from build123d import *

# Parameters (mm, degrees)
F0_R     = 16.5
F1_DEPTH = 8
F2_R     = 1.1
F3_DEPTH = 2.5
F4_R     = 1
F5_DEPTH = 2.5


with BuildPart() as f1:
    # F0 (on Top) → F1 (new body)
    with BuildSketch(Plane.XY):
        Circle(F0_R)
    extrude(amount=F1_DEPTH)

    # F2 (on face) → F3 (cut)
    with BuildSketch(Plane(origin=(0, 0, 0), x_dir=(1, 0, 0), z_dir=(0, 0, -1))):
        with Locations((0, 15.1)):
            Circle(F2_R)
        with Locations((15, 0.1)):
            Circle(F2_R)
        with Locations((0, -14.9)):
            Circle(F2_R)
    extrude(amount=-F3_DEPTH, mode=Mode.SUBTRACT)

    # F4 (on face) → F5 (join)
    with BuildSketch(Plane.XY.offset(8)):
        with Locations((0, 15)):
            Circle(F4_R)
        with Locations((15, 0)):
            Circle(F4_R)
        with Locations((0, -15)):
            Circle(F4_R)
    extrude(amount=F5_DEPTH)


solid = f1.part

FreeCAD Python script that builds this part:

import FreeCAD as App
import Part
import Sketcher

doc = App.newDocument("Part")
params = doc.addObject("Spreadsheet::Sheet", "Params")
for row, (alias, value) in enumerate([
    ("sketch1_diameter", "33 mm"),
    ("pad1_length", "8 mm"),
    ("sketch2_diameter", "2.2 mm"),
    ("pocket1_length", "2.5 mm"),
    ("sketch3_diameter", "2 mm"),
    ("pad2_length", "2.5 mm"),
], start=1):
    params.set(f"A{row}", alias)
    params.set(f"B{row}", "=" + value)
    params.setAlias(f"B{row}", alias)

body = doc.addObject("PartDesign::Body", "Body")

# Sketch on XY plane
sketch1 = body.newObject("Sketcher::SketchObject", "Sketch")
sketch1.AttachmentSupport = (doc.getObject("XY_Plane"), [""])
sketch1.MapMode = "FlatFace"
sketch1.addGeometry(Part.Circle(App.Vector(0, 0, 0), App.Vector(0, 0, 1), 16.5), False)
sketch1.addConstraint(Sketcher.Constraint("Coincident", 0, 3, -1, 1))
sketch1.addConstraint(Sketcher.Constraint("Diameter", 0, 33.0))
sketch1.setExpression("Constraints[1]", "Params.sketch1_diameter")
pad1 = body.newObject("PartDesign::Pad", "Pad")
pad1.Profile = sketch1
pad1.setExpression("Length", "Params.pad1_length")

# Sketch on XY plane
sketch2 = body.newObject("Sketcher::SketchObject", "Sketch001")
sketch2.AttachmentSupport = (doc.getObject("XY_Plane"), [""])
sketch2.MapMode = "FlatFace"
sketch2.addGeometry(Part.Circle(App.Vector(0, -15.1, 0), App.Vector(0, 0, 1), 1.1), False)
sketch2.addGeometry(Part.Circle(App.Vector(15, -0.1, 0), App.Vector(0, 0, 1), 1.1), False)
sketch2.addGeometry(Part.Circle(App.Vector(0, 14.9, 0), App.Vector(0, 0, 1), 1.1), False)
sketch2.addConstraint(Sketcher.Constraint("Equal", 0, 1))
sketch2.addConstraint(Sketcher.Constraint("Equal", 1, 2))
sketch2.addConstraint(Sketcher.Constraint("PointOnObject", 0, 3, -2))
sketch2.addConstraint(Sketcher.Constraint("PointOnObject", 2, 3, -2))
sketch2.addConstraint(Sketcher.Constraint("Diameter", 0, 2.2))
sketch2.addConstraint(Sketcher.Constraint("DistanceX", -1, 1, 1, 3, 15.0))
sketch2.addConstraint(Sketcher.Constraint("DistanceY", 0, 3, 1, 3, 15.0))
sketch2.addConstraint(Sketcher.Constraint("DistanceY", 1, 3, 2, 3, 15.0))
sketch2.addConstraint(Sketcher.Constraint("DistanceY", 0, 3, -1, 1, 15.1))
sketch2.setExpression("Constraints[4]", "Params.sketch2_diameter")
pocket1 = body.newObject("PartDesign::Pocket", "Pocket")
pocket1.Profile = sketch2
pocket1.setExpression("Length", "Params.pocket1_length")
pocket1.Reversed = True

# Sketch on XY plane
sketch3 = body.newObject("Sketcher::SketchObject", "Sketch002")
sketch3.AttachmentSupport = (doc.getObject("XY_Plane"), [""])
sketch3.MapMode = "FlatFace"
sketch3.AttachmentOffset = App.Placement(App.Vector(0, 0, 8), App.Rotation())
sketch3.addGeometry(Part.Circle(App.Vector(0, 15, 0), App.Vector(0, 0, 1), 1), False)
sketch3.addGeometry(Part.Circle(App.Vector(15, 0, 0), App.Vector(0, 0, 1), 1), False)
sketch3.addGeometry(Part.Circle(App.Vector(0, -15, 0), App.Vector(0, 0, 1), 1), False)
sketch3.addConstraint(Sketcher.Constraint("Equal", 0, 1))
sketch3.addConstraint(Sketcher.Constraint("Equal", 1, 2))
sketch3.addConstraint(Sketcher.Constraint("Symmetric", 0, 3, 2, 3, -1, 1))
sketch3.addConstraint(Sketcher.Constraint("PointOnObject", 0, 3, -2))
sketch3.addConstraint(Sketcher.Constraint("PointOnObject", 1, 3, -1))
sketch3.addConstraint(Sketcher.Constraint("Diameter", 0, 2.0))
sketch3.addConstraint(Sketcher.Constraint("DistanceY", -1, 1, 0, 3, 15.0))
sketch3.addConstraint(Sketcher.Constraint("DistanceX", -1, 1, 1, 3, 15.0))
sketch3.setExpression("Constraints[5]", "Params.sketch3_diameter")
pad2 = body.newObject("PartDesign::Pad", "Pad001")
pad2.Profile = sketch3
pad2.setExpression("Length", "Params.pad2_length")

doc.recompute()
